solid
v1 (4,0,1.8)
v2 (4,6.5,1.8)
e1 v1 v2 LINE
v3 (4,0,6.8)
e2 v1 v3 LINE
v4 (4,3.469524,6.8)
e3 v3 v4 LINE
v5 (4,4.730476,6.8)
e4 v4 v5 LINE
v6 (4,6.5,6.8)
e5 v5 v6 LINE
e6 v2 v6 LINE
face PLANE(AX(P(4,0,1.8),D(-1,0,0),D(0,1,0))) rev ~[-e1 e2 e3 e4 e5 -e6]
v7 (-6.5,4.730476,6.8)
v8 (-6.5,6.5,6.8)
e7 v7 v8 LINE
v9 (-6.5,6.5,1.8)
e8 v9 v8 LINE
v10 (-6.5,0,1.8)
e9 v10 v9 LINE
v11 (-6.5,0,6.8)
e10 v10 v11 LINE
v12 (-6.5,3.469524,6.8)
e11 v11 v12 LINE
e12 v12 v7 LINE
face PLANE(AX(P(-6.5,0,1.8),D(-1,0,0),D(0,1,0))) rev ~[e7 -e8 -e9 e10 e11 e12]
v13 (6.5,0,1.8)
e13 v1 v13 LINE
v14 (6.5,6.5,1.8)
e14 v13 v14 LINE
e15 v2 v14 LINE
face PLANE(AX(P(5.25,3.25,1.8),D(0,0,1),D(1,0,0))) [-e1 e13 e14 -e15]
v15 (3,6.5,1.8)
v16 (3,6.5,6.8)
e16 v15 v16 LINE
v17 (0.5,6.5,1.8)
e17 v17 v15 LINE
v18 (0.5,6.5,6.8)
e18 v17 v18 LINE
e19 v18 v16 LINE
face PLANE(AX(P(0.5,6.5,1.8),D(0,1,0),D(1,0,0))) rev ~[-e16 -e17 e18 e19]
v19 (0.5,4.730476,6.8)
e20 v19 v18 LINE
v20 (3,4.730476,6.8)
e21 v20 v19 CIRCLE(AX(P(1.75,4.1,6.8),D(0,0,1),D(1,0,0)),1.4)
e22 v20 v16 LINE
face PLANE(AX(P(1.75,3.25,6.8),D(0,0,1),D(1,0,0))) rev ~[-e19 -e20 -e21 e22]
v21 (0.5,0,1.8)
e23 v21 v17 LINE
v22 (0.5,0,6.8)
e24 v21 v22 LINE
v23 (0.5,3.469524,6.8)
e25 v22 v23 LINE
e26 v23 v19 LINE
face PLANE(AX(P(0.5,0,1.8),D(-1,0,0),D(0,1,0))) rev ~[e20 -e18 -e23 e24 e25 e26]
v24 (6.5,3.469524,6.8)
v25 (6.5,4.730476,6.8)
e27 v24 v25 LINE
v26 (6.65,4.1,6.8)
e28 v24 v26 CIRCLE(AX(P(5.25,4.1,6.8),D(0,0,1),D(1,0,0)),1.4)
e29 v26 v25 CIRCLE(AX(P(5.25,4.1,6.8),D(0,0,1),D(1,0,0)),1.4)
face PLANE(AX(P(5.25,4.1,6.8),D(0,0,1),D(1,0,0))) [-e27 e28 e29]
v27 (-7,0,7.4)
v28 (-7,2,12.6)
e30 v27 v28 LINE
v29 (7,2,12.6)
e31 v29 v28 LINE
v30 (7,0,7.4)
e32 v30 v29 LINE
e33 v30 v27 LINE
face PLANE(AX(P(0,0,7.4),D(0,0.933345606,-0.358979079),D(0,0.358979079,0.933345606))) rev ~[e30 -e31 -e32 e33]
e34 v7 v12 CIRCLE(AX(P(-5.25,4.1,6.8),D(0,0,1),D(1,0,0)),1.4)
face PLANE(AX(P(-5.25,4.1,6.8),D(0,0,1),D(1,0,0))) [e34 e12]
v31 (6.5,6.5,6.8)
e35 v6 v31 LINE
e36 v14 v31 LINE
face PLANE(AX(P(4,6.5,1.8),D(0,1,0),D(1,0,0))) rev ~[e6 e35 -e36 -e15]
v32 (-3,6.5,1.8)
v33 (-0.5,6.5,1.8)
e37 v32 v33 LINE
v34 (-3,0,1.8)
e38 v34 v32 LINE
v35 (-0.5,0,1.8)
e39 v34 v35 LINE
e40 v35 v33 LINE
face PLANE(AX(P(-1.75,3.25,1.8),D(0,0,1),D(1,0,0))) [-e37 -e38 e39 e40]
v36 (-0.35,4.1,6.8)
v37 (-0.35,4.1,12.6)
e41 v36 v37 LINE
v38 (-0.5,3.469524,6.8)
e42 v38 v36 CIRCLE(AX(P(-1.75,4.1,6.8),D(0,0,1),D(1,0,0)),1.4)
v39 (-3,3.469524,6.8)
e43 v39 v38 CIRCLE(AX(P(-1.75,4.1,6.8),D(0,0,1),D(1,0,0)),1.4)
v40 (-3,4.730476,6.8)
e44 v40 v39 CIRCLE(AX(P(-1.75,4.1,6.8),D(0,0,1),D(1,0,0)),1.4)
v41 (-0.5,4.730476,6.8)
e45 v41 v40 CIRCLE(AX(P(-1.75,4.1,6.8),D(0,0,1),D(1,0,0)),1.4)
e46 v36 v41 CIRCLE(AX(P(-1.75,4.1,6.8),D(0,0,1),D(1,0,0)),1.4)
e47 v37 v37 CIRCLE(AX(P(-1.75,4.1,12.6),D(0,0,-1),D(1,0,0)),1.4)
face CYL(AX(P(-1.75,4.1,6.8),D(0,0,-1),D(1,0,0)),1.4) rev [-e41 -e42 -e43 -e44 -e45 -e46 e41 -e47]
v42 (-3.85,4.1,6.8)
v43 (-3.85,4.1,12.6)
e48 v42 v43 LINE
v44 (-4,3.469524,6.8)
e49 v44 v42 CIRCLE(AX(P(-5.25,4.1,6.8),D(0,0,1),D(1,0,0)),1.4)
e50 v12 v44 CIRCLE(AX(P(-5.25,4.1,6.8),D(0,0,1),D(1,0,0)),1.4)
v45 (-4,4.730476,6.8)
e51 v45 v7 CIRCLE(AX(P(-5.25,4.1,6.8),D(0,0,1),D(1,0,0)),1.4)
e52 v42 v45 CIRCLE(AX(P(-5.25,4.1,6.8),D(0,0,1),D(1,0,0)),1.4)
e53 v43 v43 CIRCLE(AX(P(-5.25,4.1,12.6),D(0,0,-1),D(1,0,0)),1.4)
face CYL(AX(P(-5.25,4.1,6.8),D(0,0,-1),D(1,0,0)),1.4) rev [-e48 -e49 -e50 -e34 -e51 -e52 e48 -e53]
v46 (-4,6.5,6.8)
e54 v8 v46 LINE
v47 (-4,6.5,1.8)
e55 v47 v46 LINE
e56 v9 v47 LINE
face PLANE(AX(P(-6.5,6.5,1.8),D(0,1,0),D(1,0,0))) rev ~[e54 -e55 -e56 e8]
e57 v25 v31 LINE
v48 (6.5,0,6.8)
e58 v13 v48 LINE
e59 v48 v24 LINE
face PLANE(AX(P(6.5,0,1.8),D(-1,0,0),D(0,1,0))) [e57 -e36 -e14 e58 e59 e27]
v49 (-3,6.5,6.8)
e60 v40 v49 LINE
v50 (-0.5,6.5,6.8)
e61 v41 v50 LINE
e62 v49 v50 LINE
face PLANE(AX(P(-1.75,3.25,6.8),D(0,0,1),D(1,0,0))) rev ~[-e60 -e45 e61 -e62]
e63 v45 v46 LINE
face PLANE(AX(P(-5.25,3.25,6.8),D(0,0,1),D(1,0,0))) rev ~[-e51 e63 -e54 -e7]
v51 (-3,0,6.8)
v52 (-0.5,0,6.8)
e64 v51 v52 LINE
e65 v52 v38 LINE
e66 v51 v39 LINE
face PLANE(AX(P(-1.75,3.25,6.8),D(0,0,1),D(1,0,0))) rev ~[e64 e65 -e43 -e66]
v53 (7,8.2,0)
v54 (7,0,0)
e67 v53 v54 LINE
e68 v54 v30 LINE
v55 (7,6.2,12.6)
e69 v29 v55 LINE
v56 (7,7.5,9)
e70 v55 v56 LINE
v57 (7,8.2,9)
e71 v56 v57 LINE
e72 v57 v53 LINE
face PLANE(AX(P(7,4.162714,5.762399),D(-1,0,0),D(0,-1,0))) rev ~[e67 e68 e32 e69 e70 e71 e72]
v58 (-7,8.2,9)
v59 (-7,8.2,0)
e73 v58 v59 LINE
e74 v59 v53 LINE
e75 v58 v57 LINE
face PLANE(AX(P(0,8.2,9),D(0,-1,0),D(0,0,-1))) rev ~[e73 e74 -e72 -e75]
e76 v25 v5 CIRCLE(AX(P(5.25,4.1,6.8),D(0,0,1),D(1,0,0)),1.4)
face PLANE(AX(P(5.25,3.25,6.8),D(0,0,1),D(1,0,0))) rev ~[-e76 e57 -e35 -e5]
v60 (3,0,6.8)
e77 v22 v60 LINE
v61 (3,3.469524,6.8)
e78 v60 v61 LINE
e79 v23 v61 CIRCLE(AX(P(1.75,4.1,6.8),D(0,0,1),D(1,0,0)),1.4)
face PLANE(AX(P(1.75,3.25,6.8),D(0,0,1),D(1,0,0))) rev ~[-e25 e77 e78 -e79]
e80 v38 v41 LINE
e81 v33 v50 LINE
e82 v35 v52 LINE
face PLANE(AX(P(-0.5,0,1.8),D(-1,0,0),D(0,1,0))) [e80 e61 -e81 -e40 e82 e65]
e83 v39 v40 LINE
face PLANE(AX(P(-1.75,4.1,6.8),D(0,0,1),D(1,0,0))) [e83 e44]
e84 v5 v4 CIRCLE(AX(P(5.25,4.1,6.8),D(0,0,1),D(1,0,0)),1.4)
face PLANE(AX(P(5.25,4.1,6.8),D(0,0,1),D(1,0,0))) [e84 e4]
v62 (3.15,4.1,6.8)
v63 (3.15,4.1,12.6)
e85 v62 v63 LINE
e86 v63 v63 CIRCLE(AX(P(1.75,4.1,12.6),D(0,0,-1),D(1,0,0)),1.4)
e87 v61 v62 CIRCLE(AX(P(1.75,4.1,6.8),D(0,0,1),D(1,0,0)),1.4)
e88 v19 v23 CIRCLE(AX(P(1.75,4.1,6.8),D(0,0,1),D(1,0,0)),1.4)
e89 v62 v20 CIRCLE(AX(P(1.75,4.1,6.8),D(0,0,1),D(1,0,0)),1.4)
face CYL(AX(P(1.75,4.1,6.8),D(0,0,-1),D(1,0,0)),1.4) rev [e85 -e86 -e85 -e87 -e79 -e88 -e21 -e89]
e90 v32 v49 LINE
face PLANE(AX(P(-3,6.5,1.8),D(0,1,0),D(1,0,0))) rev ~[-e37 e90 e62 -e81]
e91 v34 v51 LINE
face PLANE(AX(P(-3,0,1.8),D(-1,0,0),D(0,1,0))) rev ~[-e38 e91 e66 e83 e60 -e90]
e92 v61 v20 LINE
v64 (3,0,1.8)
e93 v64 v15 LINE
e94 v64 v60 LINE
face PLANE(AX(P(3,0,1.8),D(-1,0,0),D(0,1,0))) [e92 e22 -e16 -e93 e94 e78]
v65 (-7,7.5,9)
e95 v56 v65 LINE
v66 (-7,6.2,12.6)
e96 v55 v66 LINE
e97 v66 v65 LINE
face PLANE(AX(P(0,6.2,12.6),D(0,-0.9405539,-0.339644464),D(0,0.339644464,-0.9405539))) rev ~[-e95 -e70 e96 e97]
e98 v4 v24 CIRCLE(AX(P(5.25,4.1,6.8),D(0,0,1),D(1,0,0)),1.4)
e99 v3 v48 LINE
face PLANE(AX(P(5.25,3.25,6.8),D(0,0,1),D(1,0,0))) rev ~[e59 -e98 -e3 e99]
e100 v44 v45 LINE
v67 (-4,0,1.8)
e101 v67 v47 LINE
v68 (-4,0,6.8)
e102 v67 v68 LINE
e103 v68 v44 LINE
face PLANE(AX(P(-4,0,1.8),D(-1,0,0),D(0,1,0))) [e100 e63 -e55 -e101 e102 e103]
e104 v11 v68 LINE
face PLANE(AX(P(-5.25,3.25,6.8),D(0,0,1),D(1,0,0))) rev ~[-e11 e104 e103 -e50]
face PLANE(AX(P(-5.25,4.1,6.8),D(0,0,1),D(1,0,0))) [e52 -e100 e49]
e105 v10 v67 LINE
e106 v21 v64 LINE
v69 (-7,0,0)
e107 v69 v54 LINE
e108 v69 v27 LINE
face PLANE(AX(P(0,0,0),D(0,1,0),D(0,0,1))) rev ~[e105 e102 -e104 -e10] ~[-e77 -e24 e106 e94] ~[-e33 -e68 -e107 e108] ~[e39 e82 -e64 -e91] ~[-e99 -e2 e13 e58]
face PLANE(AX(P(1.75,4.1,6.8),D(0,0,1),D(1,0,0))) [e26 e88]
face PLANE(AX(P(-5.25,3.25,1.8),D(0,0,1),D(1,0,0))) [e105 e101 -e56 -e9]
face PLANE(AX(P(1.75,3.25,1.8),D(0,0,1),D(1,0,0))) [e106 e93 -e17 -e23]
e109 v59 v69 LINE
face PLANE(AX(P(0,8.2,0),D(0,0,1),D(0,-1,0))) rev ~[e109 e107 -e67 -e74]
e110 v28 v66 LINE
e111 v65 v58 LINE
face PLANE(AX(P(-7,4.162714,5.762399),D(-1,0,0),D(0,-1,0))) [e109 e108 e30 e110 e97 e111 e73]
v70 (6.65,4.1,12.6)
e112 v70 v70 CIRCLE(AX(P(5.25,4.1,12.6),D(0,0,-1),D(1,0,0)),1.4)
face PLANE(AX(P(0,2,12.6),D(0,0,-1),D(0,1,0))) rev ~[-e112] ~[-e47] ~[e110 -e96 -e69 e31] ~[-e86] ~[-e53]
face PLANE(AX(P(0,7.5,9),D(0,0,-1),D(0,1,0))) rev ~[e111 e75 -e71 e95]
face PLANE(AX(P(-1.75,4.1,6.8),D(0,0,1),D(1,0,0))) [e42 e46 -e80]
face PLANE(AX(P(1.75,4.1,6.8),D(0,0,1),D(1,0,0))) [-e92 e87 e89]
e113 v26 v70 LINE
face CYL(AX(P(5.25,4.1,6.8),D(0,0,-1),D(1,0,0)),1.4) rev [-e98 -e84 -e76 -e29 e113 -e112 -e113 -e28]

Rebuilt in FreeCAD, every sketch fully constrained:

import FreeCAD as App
import Part
import Sketcher

V = App.Vector


def add_polygon(sketch, points):
    """Adds a closed chain of lines whose ends are joined by coincident constraints."""
    first, n = sketch.GeometryCount, len(points)
    for a, b in zip(points, points[1:] + points[:1]):
        sketch.addGeometry(Part.LineSegment(App.Vector(*a, 0), App.Vector(*b, 0)), False)
    for i in range(n):
        sketch.addConstraint(Sketcher.Constraint("Coincident", first + i, 2, first + (i + 1) % n, 1))

doc = App.newDocument("Part")
params = doc.addObject("Spreadsheet::Sheet", "Params")
for row, (alias, value) in enumerate([
    ("sketch1_width", "2.5 mm"),
    ("sketch1_height", "6.5 mm"),
    ("pad1_length", "5 mm"),
    ("sketch2_width", "2.5 mm"),
    ("sketch2_height", "6.5 mm"),
    ("pad2_length", "5 mm"),
    ("sketch3_width", "2.5 mm"),
    ("sketch3_height", "6.5 mm"),
    ("pad3_length", "5 mm"),
    ("sketch4_width", "2.5 mm"),
    ("sketch4_height", "6.5 mm"),
    ("pad4_length", "5 mm"),
    ("sketch5_diameter", "2.8 mm"),
    ("pad5_length", "6.1 mm"),
    ("sketch6_diameter", "2.8 mm"),
    ("pad6_length", "6.1 mm"),
    ("sketch7_diameter", "2.8 mm"),
    ("pad7_length", "6.1 mm"),
    ("sketch8_diameter", "2.8 mm"),
    ("pad8_length", "6.1 mm"),
    ("sketch9_height", "9 mm"),
    ("sketch9_width", "8.2 mm"),
    ("sketch9_width2", "0.7 mm"),
    ("sketch9_width3", "4.2 mm"),
    ("sketch9_height2", "7.4 mm"),
    ("pad9_length", "14 mm"),
], start=1):
    params.set(f"A{row}", alias)
    params.set(f"B{row}", "=" + value)
    params.setAlias(f"B{row}", alias)

body = doc.addObject("PartDesign::Body", "Body")

# Sketch on XY plane
sketch1 = doc.addObject("Sketcher::SketchObject", "Sketch")
body.addObject(sketch1)
sketch1.AttachmentSupport = (doc.XY_Plane, [""])
sketch1.MapMode = "FlatFace"
sketch1.AttachmentOffset = App.Placement(V(0, 0, 1.8), App.Rotation())
add_polygon(sketch1, [(-3, 6.5), (-3, 0), (-0.5, 0), (-0.5, 6.5)])  # lines 0-3
sketch1.addConstraint([
    Sketcher.Constraint("Vertical", 0),
    Sketcher.Constraint("Horizontal", 1),
    Sketcher.Constraint("Vertical", 2),
    Sketcher.Constraint("Horizontal", 3),
    Sketcher.Constraint("PointOnObject", 0, 2, -1),
    Sketcher.Constraint("DistanceX", 1, 1, 1, 2, 2.5),
    Sketcher.Constraint("DistanceY", 0, 2, 0, 1, 6.5),
    Sketcher.Constraint("DistanceX", 0, 2, -1, 1, 3.0),
])
sketch1.setExpression("Constraints[9]", "Params.sketch1_width")
sketch1.setExpression("Constraints[10]", "Params.sketch1_height")
pad1 = doc.addObject("PartDesign::Pad", "Pad")
body.addObject(pad1)
pad1.Profile = sketch1
pad1.setExpression("Length", "Params.pad1_length")
body2 = doc.addObject("PartDesign::Body", "Body001")

# Sketch on XY plane
sketch2 = doc.addObject("Sketcher::SketchObject", "Sketch001")
body2.addObject(sketch2)
sketch2.AttachmentSupport = (doc.getObject("XY_Plane001"), [""])
sketch2.MapMode = "FlatFace"
sketch2.AttachmentOffset = App.Placement(V(0, 0, 1.8), App.Rotation())
add_polygon(sketch2, [(0.5, 6.5), (0.5, 0), (3, 0), (3, 6.5)])  # lines 0-3
sketch2.addConstraint([
    Sketcher.Constraint("Vertical", 0),
    Sketcher.Constraint("Horizontal", 1),
    Sketcher.Constraint("Vertical", 2),
    Sketcher.Constraint("Horizontal", 3),
    Sketcher.Constraint("PointOnObject", 0, 2, -1),
    Sketcher.Constraint("DistanceX", 1, 1, 1, 2, 2.5),
    Sketcher.Constraint("DistanceY", 0, 2, 0, 1, 6.5),
    Sketcher.Constraint("DistanceX", -1, 1, 1, 2, 3.0),
])
sketch2.setExpression("Constraints[9]", "Params.sketch2_width")
sketch2.setExpression("Constraints[10]", "Params.sketch2_height")
pad2 = doc.addObject("PartDesign::Pad", "Pad001")
body2.addObject(pad2)
pad2.Profile = sketch2
pad2.setExpression("Length", "Params.pad2_length")
body3 = doc.addObject("PartDesign::Body", "Body002")

# Sketch on XY plane
sketch3 = doc.addObject("Sketcher::SketchObject", "Sketch002")
body3.addObject(sketch3)
sketch3.AttachmentSupport = (doc.getObject("XY_Plane002"), [""])
sketch3.MapMode = "FlatFace"
sketch3.AttachmentOffset = App.Placement(V(0, 0, 1.8), App.Rotation())
add_polygon(sketch3, [(4, 6.5), (4, 0), (6.5, 0), (6.5, 6.5)])  # lines 0-3
sketch3.addConstraint([
    Sketcher.Constraint("Vertical", 0),
    Sketcher.Constraint("Horizontal", 1),
    Sketcher.Constraint("Vertical", 2),
    Sketcher.Constraint("Horizontal", 3),
    Sketcher.Constraint("PointOnObject", 0, 2, -1),
    Sketcher.Constraint("DistanceX", 1, 1, 1, 2, 2.5),
    Sketcher.Constraint("DistanceY", 0, 2, 0, 1, 6.5),
    Sketcher.Constraint("DistanceX", -1, 1, 0, 2, 4.0),
])
sketch3.setExpression("Constraints[9]", "Params.sketch3_width")
sketch3.setExpression("Constraints[10]", "Params.sketch3_height")
pad3 = doc.addObject("PartDesign::Pad", "Pad002")
body3.addObject(pad3)
pad3.Profile = sketch3
pad3.setExpression("Length", "Params.pad3_length")
body4 = doc.addObject("PartDesign::Body", "Body003")

# Sketch on XY plane
sketch4 = doc.addObject("Sketcher::SketchObject", "Sketch003")
body4.addObject(sketch4)
sketch4.AttachmentSupport = (doc.getObject("XY_Plane003"), [""])
sketch4.MapMode = "FlatFace"
sketch4.AttachmentOffset = App.Placement(V(0, 0, 1.8), App.Rotation())
add_polygon(sketch4, [(-6.5, 6.5), (-6.5, 0), (-4, 0), (-4, 6.5)])  # lines 0-3
sketch4.addConstraint([
    Sketcher.Constraint("Vertical", 0),
    Sketcher.Constraint("Horizontal", 1),
    Sketcher.Constraint("Vertical", 2),
    Sketcher.Constraint("Horizontal", 3),
    Sketcher.Constraint("PointOnObject", 0, 2, -1),
    Sketcher.Constraint("DistanceX", 1, 1, 1, 2, 2.5),
    Sketcher.Constraint("DistanceY", 0, 2, 0, 1, 6.5),
    Sketcher.Constraint("DistanceX", 1, 2, -1, 1, 4.0),
])
sketch4.setExpression("Constraints[9]", "Params.sketch4_width")
sketch4.setExpression("Constraints[10]", "Params.sketch4_height")
pad4 = doc.addObject("PartDesign::Pad", "Pad003")
body4.addObject(pad4)
pad4.Profile = sketch4
pad4.setExpression("Length", "Params.pad4_length")
body5 = doc.addObject("PartDesign::Body", "Body004")

# Sketch on XY plane
sketch5 = doc.addObject("Sketcher::SketchObject", "Sketch004")
body5.addObject(sketch5)
sketch5.AttachmentSupport = (doc.getObject("XY_Plane004"), [""])
sketch5.MapMode = "FlatFace"
sketch5.AttachmentOffset = App.Placement(V(0, 0, 6.8), App.Rotation())
sketch5.addGeometry(Part.Circle(V(5.2, 4.1, 0), V(0, 0, 1), 1.4), False)
sketch5.addConstraint([
    Sketcher.Constraint("Diameter", 0, 2.8),
    Sketcher.Constraint("DistanceY", -1, 1, 0, 3, 4.1),
    Sketcher.Constraint("DistanceX", -1, 1, 0, 3, 5.25),
])
sketch5.setExpression("Constraints[0]", "Params.sketch5_diameter")
pad5 = doc.addObject("PartDesign::Pad", "Pad004")
body5.addObject(pad5)
pad5.Profile = sketch5
pad5.setExpression("Length", "Params.pad5_length")
body6 = doc.addObject("PartDesign::Body", "Body005")

# Sketch on XY plane
sketch6 = doc.addObject("Sketcher::SketchObject", "Sketch005")
body6.addObject(sketch6)
sketch6.AttachmentSupport = (doc.getObject("XY_Plane005"), [""])
sketch6.MapMode = "FlatFace"
sketch6.AttachmentOffset = App.Placement(V(0, 0, 6.8), App.Rotation())
sketch6.addGeometry(Part.Circle(V(-1.8, 4.1, 0), V(0, 0, 1), 1.4), False)
sketch6.addConstraint([
    Sketcher.Constraint("Diameter", 0, 2.8),
    Sketcher.Constraint("DistanceY", -1, 1, 0, 3, 4.1),
    Sketcher.Constraint("DistanceX", 0, 3, -1, 1, 1.75),
])
sketch6.setExpression("Constraints[0]", "Params.sketch6_diameter")
pad6 = doc.addObject("PartDesign::Pad", "Pad005")
body6.addObject(pad6)
pad6.Profile = sketch6
pad6.setExpression("Length", "Params.pad6_length")
body7 = doc.addObject("PartDesign::Body", "Body006")

# Sketch on XY plane
sketch7 = doc.addObject("Sketcher::SketchObject", "Sketch006")
body7.addObject(sketch7)
sketch7.AttachmentSupport = (doc.getObject("XY_Plane006"), [""])
sketch7.MapMode = "FlatFace"
sketch7.AttachmentOffset = App.Placement(V(0, 0, 6.8), App.Rotation())
sketch7.addGeometry(Part.Circle(V(-5.2, 4.1, 0), V(0, 0, 1), 1.4), False)
sketch7.addConstraint([
    Sketcher.Constraint("Diameter", 0, 2.8),
    Sketcher.Constraint("DistanceY", -1, 1, 0, 3, 4.1),
    Sketcher.Constraint("DistanceX", 0, 3, -1, 1, 5.25),
])
sketch7.setExpression("Constraints[0]", "Params.sketch7_diameter")
pad7 = doc.addObject("PartDesign::Pad", "Pad006")
body7.addObject(pad7)
pad7.Profile = sketch7
pad7.setExpression("Length", "Params.pad7_length")
body8 = doc.addObject("PartDesign::Body", "Body007")

# Sketch on XY plane
sketch8 = doc.addObject("Sketcher::SketchObject", "Sketch007")
body8.addObject(sketch8)
sketch8.AttachmentSupport = (doc.getObject("XY_Plane007"), [""])
sketch8.MapMode = "FlatFace"
sketch8.AttachmentOffset = App.Placement(V(0, 0, 6.8), App.Rotation())
sketch8.addGeometry(Part.Circle(V(1.8, 4.1, 0), V(0, 0, 1), 1.4), False)
sketch8.addConstraint([
    Sketcher.Constraint("Diameter", 0, 2.8),
    Sketcher.Constraint("DistanceY", -1, 1, 0, 3, 4.1),
    Sketcher.Constraint("DistanceX", -1, 1, 0, 3, 1.75),
])
sketch8.setExpression("Constraints[0]", "Params.sketch8_diameter")
pad8 = doc.addObject("PartDesign::Pad", "Pad007")
body8.addObject(pad8)
pad8.Profile = sketch8
pad8.setExpression("Length", "Params.pad8_length")
body9 = doc.addObject("PartDesign::Body", "Body008")

# Sketch on YZ plane
sketch9 = doc.addObject("Sketcher::SketchObject", "Sketch008")
body9.addObject(sketch9)
sketch9.AttachmentSupport = (doc.getObject("YZ_Plane008"), [""])
sketch9.MapMode = "FlatFace"
add_polygon(sketch9, [(0, 7.4), (0, 0), (8.2, 0), (8.2, 9), (7.5, 9), (6.2, 12.6), (2, 12.6)])  # lines 0-6
sketch9.addConstraint([
    Sketcher.Constraint("Vertical", 0),
    Sketcher.Constraint("Horizontal", 1),
    Sketcher.Constraint("Vertical", 2),
    Sketcher.Constraint("Horizontal", 3),
    Sketcher.Constraint("Horizontal", 5),
    Sketcher.Constraint("Coincident", 0, 2, -1, 1),
    Sketcher.Constraint("DistanceY", 2, 1, 2, 2, 9.0),
    Sketcher.Constraint("DistanceX", 1, 1, 1, 2, 8.2),
    Sketcher.Constraint("DistanceX", 3, 2, 3, 1, 0.7),
    Sketcher.Constraint("DistanceX", 5, 2, 5, 1, 4.2),
    Sketcher.Constraint("DistanceY", 0, 2, 0, 1, 7.4),
    Sketcher.Constraint("DistanceX", -1, 1, 5, 2, 2.0),
    Sketcher.Constraint("DistanceY", -1, 1, 4, 2, 12.6),
])
sketch9.setExpression("Constraints[13]", "Params.sketch9_height")
sketch9.setExpression("Constraints[14]", "Params.sketch9_width")
sketch9.setExpression("Constraints[15]", "Params.sketch9_width2")
sketch9.setExpression("Constraints[16]", "Params.sketch9_width3")
sketch9.setExpression("Constraints[17]", "Params.sketch9_height2")
pad9 = doc.addObject("PartDesign::Pad", "Pad008")
body9.addObject(pad9)
pad9.Profile = sketch9
pad9.setExpression("Length", "Params.pad9_length")
pad9.Midplane = True
doc.recompute()

boolean = doc.addObject("PartDesign::Boolean", "Boolean")
body9.addObject(boolean)
boolean.Type = "Cut"
boolean.addObjects([body8])
doc.recompute()

boolean2 = doc.addObject("PartDesign::Boolean", "Boolean001")
body9.addObject(boolean2)
boolean2.Type = "Cut"
boolean2.addObjects([body7])
doc.recompute()

boolean3 = doc.addObject("PartDesign::Boolean", "Boolean002")
body9.addObject(boolean3)
boolean3.Type = "Cut"
boolean3.addObjects([body6])
doc.recompute()

boolean4 = doc.addObject("PartDesign::Boolean", "Boolean003")
body9.addObject(boolean4)
boolean4.Type = "Cut"
boolean4.addObjects([body5])
doc.recompute()

boolean5 = doc.addObject("PartDesign::Boolean", "Boolean004")
body9.addObject(boolean5)
boolean5.Type = "Cut"
boolean5.addObjects([body4])
doc.recompute()

boolean6 = doc.addObject("PartDesign::Boolean", "Boolean005")
body9.addObject(boolean6)
boolean6.Type = "Cut"
boolean6.addObjects([body3])
doc.recompute()

boolean7 = doc.addObject("PartDesign::Boolean", "Boolean006")
body9.addObject(boolean7)
boolean7.Type = "Cut"
boolean7.addObjects([body2])
doc.recompute()

boolean8 = doc.addObject("PartDesign::Boolean", "Boolean007")
body9.addObject(boolean8)
boolean8.Type = "Cut"
boolean8.addObjects([body])

doc.recompute()
